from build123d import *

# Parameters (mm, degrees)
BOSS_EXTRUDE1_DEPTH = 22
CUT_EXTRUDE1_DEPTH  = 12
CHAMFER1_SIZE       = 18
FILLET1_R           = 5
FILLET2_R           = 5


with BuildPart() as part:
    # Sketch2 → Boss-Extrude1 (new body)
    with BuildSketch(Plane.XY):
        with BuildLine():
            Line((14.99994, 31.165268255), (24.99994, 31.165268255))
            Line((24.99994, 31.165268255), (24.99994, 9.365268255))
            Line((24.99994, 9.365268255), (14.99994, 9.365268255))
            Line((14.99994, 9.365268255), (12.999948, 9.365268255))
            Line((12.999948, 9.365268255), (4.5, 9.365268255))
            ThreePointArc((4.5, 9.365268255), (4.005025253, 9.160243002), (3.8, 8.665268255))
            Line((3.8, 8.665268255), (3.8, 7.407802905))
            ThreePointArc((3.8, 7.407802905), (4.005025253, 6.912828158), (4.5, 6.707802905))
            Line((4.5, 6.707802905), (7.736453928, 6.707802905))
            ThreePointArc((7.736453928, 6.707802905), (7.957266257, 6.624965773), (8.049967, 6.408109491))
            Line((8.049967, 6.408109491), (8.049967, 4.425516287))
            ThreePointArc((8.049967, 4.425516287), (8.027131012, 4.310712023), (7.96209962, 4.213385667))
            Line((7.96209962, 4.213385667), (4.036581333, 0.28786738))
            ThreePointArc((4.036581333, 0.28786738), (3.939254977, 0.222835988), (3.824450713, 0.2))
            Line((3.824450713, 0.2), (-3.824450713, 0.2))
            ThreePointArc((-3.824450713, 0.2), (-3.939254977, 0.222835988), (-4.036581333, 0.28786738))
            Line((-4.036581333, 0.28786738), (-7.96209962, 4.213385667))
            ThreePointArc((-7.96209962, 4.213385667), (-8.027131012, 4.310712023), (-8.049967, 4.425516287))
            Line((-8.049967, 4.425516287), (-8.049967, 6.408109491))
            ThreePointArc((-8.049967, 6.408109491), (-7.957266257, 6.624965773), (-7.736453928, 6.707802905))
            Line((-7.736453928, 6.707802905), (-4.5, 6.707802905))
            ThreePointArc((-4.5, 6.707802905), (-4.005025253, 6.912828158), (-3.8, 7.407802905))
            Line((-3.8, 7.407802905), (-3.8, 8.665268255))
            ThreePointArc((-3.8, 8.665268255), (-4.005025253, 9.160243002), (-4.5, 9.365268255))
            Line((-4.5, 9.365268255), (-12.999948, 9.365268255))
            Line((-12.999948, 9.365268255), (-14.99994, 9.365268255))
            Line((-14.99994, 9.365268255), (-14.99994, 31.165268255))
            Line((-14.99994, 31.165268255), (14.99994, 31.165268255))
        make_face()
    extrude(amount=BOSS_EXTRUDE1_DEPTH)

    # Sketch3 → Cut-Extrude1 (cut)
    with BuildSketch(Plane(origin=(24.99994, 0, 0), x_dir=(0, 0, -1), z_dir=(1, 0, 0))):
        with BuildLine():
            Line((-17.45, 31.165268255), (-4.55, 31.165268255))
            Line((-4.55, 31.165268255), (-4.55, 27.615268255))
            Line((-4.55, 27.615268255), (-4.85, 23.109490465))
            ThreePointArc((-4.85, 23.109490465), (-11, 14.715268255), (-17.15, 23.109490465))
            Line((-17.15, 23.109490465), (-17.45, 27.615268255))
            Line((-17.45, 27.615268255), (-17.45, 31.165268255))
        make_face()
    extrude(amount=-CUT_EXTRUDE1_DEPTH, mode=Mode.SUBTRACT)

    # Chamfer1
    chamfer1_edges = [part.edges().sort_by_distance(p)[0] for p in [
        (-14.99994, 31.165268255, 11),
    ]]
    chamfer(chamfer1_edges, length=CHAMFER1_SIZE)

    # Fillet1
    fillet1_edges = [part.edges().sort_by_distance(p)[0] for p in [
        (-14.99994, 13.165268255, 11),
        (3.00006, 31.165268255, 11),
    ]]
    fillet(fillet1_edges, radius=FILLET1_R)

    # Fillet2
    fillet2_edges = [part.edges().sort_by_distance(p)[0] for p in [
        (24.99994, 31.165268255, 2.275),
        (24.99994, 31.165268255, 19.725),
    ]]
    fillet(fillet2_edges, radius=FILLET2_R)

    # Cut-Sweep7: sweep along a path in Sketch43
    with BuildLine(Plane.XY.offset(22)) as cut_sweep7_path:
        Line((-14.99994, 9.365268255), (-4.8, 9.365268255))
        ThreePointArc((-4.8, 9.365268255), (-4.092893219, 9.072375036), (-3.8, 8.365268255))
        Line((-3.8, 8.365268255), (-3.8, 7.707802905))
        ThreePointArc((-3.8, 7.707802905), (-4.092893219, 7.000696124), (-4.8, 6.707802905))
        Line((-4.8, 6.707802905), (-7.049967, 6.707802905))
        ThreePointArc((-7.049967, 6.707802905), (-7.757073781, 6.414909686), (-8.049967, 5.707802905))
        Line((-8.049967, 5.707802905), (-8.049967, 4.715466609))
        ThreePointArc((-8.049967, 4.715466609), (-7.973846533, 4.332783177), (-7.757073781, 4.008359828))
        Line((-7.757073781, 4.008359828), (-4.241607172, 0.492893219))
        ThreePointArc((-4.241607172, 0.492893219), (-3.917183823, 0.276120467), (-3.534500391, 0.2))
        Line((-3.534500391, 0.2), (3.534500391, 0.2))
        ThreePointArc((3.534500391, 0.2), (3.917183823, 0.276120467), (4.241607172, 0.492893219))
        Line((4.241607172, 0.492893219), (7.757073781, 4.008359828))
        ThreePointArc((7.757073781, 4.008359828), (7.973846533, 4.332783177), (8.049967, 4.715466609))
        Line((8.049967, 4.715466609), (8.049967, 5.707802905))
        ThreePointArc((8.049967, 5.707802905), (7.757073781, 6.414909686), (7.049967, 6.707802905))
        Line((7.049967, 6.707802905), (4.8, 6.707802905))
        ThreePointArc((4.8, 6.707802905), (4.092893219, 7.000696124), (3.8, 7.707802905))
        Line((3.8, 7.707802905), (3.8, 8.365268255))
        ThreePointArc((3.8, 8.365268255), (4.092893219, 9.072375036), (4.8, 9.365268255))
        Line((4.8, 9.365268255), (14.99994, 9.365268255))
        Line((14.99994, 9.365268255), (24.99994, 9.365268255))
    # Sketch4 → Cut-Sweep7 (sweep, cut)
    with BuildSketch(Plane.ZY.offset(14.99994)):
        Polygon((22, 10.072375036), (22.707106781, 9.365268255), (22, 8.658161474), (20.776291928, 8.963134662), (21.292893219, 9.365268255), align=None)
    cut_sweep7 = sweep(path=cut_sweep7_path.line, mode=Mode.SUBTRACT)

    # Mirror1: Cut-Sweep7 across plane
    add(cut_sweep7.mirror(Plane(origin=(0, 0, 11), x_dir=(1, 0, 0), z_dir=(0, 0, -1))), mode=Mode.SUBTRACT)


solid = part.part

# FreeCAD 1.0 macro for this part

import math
import FreeCAD as App
import Part
import Sketcher


def edges_at(feature, points):
    """Names of the edges that pass closest to the given points."""
    edges = feature.Shape.Edges
    near = lambda p: min(range(len(edges)), key=lambda i: edges[i].distToShape(Part.Vertex(*p))[0])
    return sorted({f"Edge{near(p) + 1}" for p in points})

doc = App.newDocument("Part")
body = doc.addObject("PartDesign::Body", "Body")

# Sketch on XY plane
sketch1 = body.newObject("Sketcher::SketchObject", "Sketch")
sketch1.AttachmentSupport = (doc.getObject("XY_Plane"), [""])
sketch1.MapMode = "FlatFace"
sketch1.addGeometry([
    Part.LineSegment(App.Vector(25, 9.37, 0), App.Vector(25, 31.17, 0)),  # 0
    Part.LineSegment(App.Vector(25, 31.17, 0), App.Vector(-15, 31.17, 0)),  # 1
    Part.LineSegment(App.Vector(-15, 31.17, 0), App.Vector(-15, 9.37, 0)),  # 2
    Part.LineSegment(App.Vector(-15, 9.37, 0), App.Vector(-4.5, 9.37, 0)),  # 3
    Part.ArcOfCircle(Part.Circle(App.Vector(-4.5, 8.67, 0), App.Vector(0, 0, 1), 0.7), math.radians(0), math.radians(90)),  # 4
    Part.LineSegment(App.Vector(-3.8, 8.67, 0), App.Vector(-3.8, 7.41, 0)),  # 5
    Part.ArcOfCircle(Part.Circle(App.Vector(-4.5, 7.41, 0), App.Vector(0, 0, 1), 0.7), math.radians(-90), math.radians(0)),  # 6
    Part.LineSegment(App.Vector(-4.5, 6.71, 0), App.Vector(-7.74, 6.71, 0)),  # 7
    Part.ArcOfCircle(Part.Circle(App.Vector(-7.75, 6.41, 0), App.Vector(0, 0, 1), 0.3), math.radians(87), math.radians(180)),  # 8
    Part.LineSegment(App.Vector(-8.05, 6.41, 0), App.Vector(-8.05, 4.43, 0)),  # 9
    Part.ArcOfCircle(Part.Circle(App.Vector(-7.75, 4.43, 0), App.Vector(0, 0, 1), 0.3), math.radians(180), math.radians(225)),  # 10
    Part.LineSegment(App.Vector(-7.96, 4.21, 0), App.Vector(-4.04, 0.29, 0)),  # 11
    Part.ArcOfCircle(Part.Circle(App.Vector(-3.82, 0.5, 0), App.Vector(0, 0, 1), 0.3), math.radians(-135), math.radians(-90)),  # 12
    Part.LineSegment(App.Vector(-3.82, 0.2, 0), App.Vector(3.82, 0.2, 0)),  # 13
    Part.ArcOfCircle(Part.Circle(App.Vector(3.82, 0.5, 0), App.Vector(0, 0, 1), 0.3), math.radians(-90), math.radians(-45)),  # 14
    Part.LineSegment(App.Vector(4.04, 0.29, 0), App.Vector(7.96, 4.21, 0)),  # 15
    Part.ArcOfCircle(Part.Circle(App.Vector(7.75, 4.43, 0), App.Vector(0, 0, 1), 0.3), math.radians(-45), math.radians(0)),  # 16
    Part.LineSegment(App.Vector(8.05, 4.43, 0), App.Vector(8.05, 6.41, 0)),  # 17
    Part.ArcOfCircle(Part.Circle(App.Vector(7.75, 6.41, 0), App.Vector(0, 0, 1), 0.3), math.radians(0), math.radians(93)),  # 18
    Part.LineSegment(App.Vector(7.74, 6.71, 0), App.Vector(4.5, 6.71, 0)),  # 19
    Part.ArcOfCircle(Part.Circle(App.Vector(4.5, 7.41, 0), App.Vector(0, 0, 1), 0.7), math.radians(180), math.radians(270)),  # 20
    Part.LineSegment(App.Vector(3.8, 7.41, 0), App.Vector(3.8, 8.67, 0)),  # 21
    Part.ArcOfCircle(Part.Circle(App.Vector(4.5, 8.67, 0), App.Vector(0, 0, 1), 0.7), math.radians(90), math.radians(180)),  # 22
    Part.LineSegment(App.Vector(4.5, 9.37, 0), App.Vector(25, 9.37, 0)),  # 23
], False)
sketch1.addConstraint([
    Sketcher.Constraint("Coincident", 0, 2, 1, 1),
    Sketcher.Constraint("Coincident", 1, 2, 2, 1),
    Sketcher.Constraint("Coincident", 2, 2, 3, 1),
    Sketcher.Constraint("Tangent", 3, 2, 4, 2),
    Sketcher.Constraint("Tangent", 4, 1, 5, 1),
    Sketcher.Constraint("Tangent", 5, 2, 6, 2),
    Sketcher.Constraint("Tangent", 6, 1, 7, 1),
    Sketcher.Constraint("Coincident", 7, 2, 8, 1),
    Sketcher.Constraint("Tangent", 8, 2, 9, 1),
    Sketcher.Constraint("Tangent", 9, 2, 10, 1),
    Sketcher.Constraint("Tangent", 10, 2, 11, 1),
    Sketcher.Constraint("Tangent", 11, 2, 12, 1),
    Sketcher.Constraint("Tangent", 12, 2, 13, 1),
    Sketcher.Constraint("Tangent", 13, 2, 14, 1),
    Sketcher.Constraint("Tangent", 14, 2, 15, 1),
    Sketcher.Constraint("Tangent", 15, 2, 16, 1),
    Sketcher.Constraint("Tangent", 16, 2, 17, 1),
    Sketcher.Constraint("Tangent", 17, 2, 18, 1),
    Sketcher.Constraint("Coincident", 18, 2, 19, 1),
    Sketcher.Constraint("Tangent", 19, 2, 20, 2),
    Sketcher.Constraint("Tangent", 20, 1, 21, 1),
    Sketcher.Constraint("Tangent", 21, 2, 22, 2),
    Sketcher.Constraint("Tangent", 22, 1, 23, 1),
    Sketcher.Constraint("Coincident", 23, 2, 0, 1),
    Sketcher.Constraint("Vertical", 0),
    Sketcher.Constraint("Horizontal", 1),
    Sketcher.Constraint("Vertical", 2),
    Sketcher.Constraint("Horizontal", 3),
    Sketcher.Constraint("Vertical", 5),
    Sketcher.Constraint("Horizontal", 7),
    Sketcher.Constraint("Vertical", 9),
    Sketcher.Constraint("Horizontal", 13),
    Sketcher.Constraint("Vertical", 17),
    Sketcher.Constraint("Horizontal", 19),
    Sketcher.Constraint("Vertical", 21),
    Sketcher.Constraint("Horizontal", 23),
    Sketcher.Constraint("Equal", 4, 6),
    Sketcher.Constraint("Equal", 8, 10),
    Sketcher.Constraint("Equal", 10, 12),
    Sketcher.Constraint("Equal", 12, 14),
    Sketcher.Constraint("Equal", 14, 16),
    Sketcher.Constraint("Equal", 16, 18),
    Sketcher.Constraint("Equal", 6, 20),
    Sketcher.Constraint("Equal", 20, 22),
    Sketcher.Constraint("Symmetric", 10, 3, 16, 3, -2),
    Sketcher.Constraint("Symmetric", 6, 3, 20, 3, -2),
    Sketcher.Constraint("Perpendicular", 11, 15),
    Sketcher.Constraint("Horizontal", 8, 3, 18, 3),
    Sketcher.Constraint("Horizontal", 4, 3, 22, 3),
    Sketcher.Constraint("Horizontal", 11, 2, 14, 2),
    Sketcher.Constraint("Radius", 4, 0.7),
    Sketcher.Constraint("DistanceY", 0, 1, 0, 2, 21.8),
    Sketcher.Constraint("DistanceX", 6, 3, 20, 3, 9.0),
    Sketcher.Constraint("DistanceY", -1, 1, 12, 2, 0.2),
    Sketcher.Constraint("DistanceX", 8, 2, 8, 3, 0.299998),
    Sketcher.Constraint("DistanceX", 13, 1, 13, 2, 7.648901),
    Sketcher.Constraint("DistanceX", 1, 2, 1, 1, 39.99988),
    Sketcher.Constraint("DistanceX", 3, 1, 3, 2, 10.49994),
    Sketcher.Constraint("DistanceX", 10, 2, -1, 1, 7.9621),
    Sketcher.Constraint("DistanceX", 7, 2, 7, 1, 3.236454),
    Sketcher.Constraint("DistanceY", 5, 2, 5, 1, 1.257465),
    Sketcher.Constraint("DistanceY", 9, 2, 9, 1, 1.982593),
])
pad1 = body.newObject("PartDesign::Pad", "Pad")
pad1.Profile = sketch1
pad1.Length = 22

# Sketch on YZ plane
sketch2 = body.newObject("Sketcher::SketchObject", "Sketch001")
sketch2.AttachmentSupport = (doc.getObject("YZ_Plane"), [""])
sketch2.MapMode = "FlatFace"
sketch2.AttachmentOffset = App.Placement(App.Vector(0, 0, 24.99994), App.Rotation())
sketch2.addGeometry([
    Part.LineSegment(App.Vector(31.2, 4.5, 0), App.Vector(31.2, 17.4, 0)),  # 0
    Part.LineSegment(App.Vector(31.2, 17.4, 0), App.Vector(27.6, 17.4, 0)),  # 1
    Part.LineSegment(App.Vector(27.6, 17.4, 0), App.Vector(23.1, 17.1, 0)),  # 2
    Part.ArcOfCircle(Part.Circle(App.Vector(21.2, 11, 0), App.Vector(0, 0, 1), 6.5), math.radians(72), math.radians(288)),  # 3
    Part.LineSegment(App.Vector(23.1, 4.8, 0), App.Vector(27.6, 4.5, 0)),  # 4
    Part.LineSegment(App.Vector(27.6, 4.5, 0), App.Vector(31.2, 4.5, 0)),  # 5
], False)
sketch2.addConstraint([
    Sketcher.Constraint("Coincident", 0, 2, 1, 1),
    Sketcher.Constraint("Coincident", 1, 2, 2, 1),
    Sketcher.Constraint("Coincident", 2, 2, 3, 1),
    Sketcher.Constraint("Coincident", 3, 2, 4, 1),
    Sketcher.Constraint("Coincident", 4, 2, 5, 1),
    Sketcher.Constraint("Coincident", 5, 2, 0, 1),
    Sketcher.Constraint("Vertical", 0),
    Sketcher.Constraint("Horizontal", 1),
    Sketcher.Constraint("Horizontal", 5),
    Sketcher.Constraint("Vertical", 2, 2, 3, 2),
    Sketcher.Constraint("Vertical", 1, 2, 4, 2),
    Sketcher.Constraint("Equal", 2, 4),
    Sketcher.Constraint("Radius", 3, 6.45),
    Sketcher.Constraint("DistanceY", 0, 1, 0, 2, 12.9),
    Sketcher.Constraint("DistanceY", -1, 1, 3, 3, 11.0),
    Sketcher.Constraint("DistanceX", 3, 3, 0, 2, 10.0),
    Sketcher.Constraint("DistanceX", 1, 2, 1, 1, 3.55),
    Sketcher.Constraint("DistanceY", 2, 2, 1, 2, 0.3),
    Sketcher.Constraint("DistanceX", -1, 1, 3, 3, 21.165268),
])
pocket1 = body.newObject("PartDesign::Pocket", "Pocket")
pocket1.Profile = sketch2
pocket1.Length = 12
doc.recompute()

chamfer = body.newObject("PartDesign::Chamfer", "Chamfer")
chamfer.Base = (pocket1, edges_at(pocket1, [(-15, 31.165, 11)]))
chamfer.Size = 18
doc.recompute()

fillet = body.newObject("PartDesign::Fillet", "Fillet")
fillet.Base = (chamfer, edges_at(chamfer, [(-15, 13.165, 11), (3, 31.165, 11)]))
fillet.Radius = 5
doc.recompute()

fillet2 = body.newObject("PartDesign::Fillet", "Fillet001")
fillet2.Base = (fillet, edges_at(fillet, [(25, 31.165, 2.275), (25, 31.165, 19.725)]))
fillet2.Radius = 5

# Sketch on YZ plane
sketch3 = body.newObject("Sketcher::SketchObject", "Sketch002")
sketch3.AttachmentSupport = (doc.getObject("YZ_Plane"), [""])
sketch3.MapMode = "FlatFace"
sketch3.AttachmentOffset = App.Placement(App.Vector(0, 0, -14.99994), App.Rotation())
sketch3.addGeometry([
    Part.LineSegment(App.Vector(9.4, 22.7, 0), App.Vector(10.1, 22, 0)),  # 0
    Part.LineSegment(App.Vector(10.1, 22, 0), App.Vector(9.4, 21.3, 0)),  # 1
    Part.LineSegment(App.Vector(9.4, 21.3, 0), App.Vector(9, 20.8, 0)),  # 2
    Part.LineSegment(App.Vector(9, 20.8, 0), App.Vector(8.7, 22, 0)),  # 3
    Part.LineSegment(App.Vector(8.7, 22, 0), App.Vector(9.4, 22.7, 0)),  # 4
], False)
sketch3.addConstraint([
    Sketcher.Constraint("Coincident", 0, 2, 1, 1),
    Sketcher.Constraint("Coincident", 1, 2, 2, 1),
    Sketcher.Constraint("Coincident", 2, 2, 3, 1),
    Sketcher.Constraint("Coincident", 3, 2, 4, 1),
    Sketcher.Constraint("Coincident", 4, 2, 0, 1),
    Sketcher.Constraint("Perpendicular", 0, 1),
    Sketcher.Constraint("Parallel", 1, 4),
    Sketcher.Constraint("Horizontal", 0, 2, 3, 2),
    Sketcher.Constraint("Vertical", 1, 2, 4, 2),
    Sketcher.Constraint("Equal", 0, 1),
    Sketcher.Constraint("Distance", 0, 1.0),
    Sketcher.Constraint("DistanceY", -1, 1, 0, 2, 22.0),
    Sketcher.Constraint("DistanceY", 2, 2, 1, 2, 0.516601),
    Sketcher.Constraint("Distance", 3, 1.261138),
    Sketcher.Constraint("DistanceX", -1, 1, 1, 2, 9.365268),
])

# Sketch on XY plane
sketch4 = body.newObject("Sketcher::SketchObject", "Sketch003")
sketch4.AttachmentSupport = (doc.getObject("XY_Plane"), [""])
sketch4.MapMode = "FlatFace"
sketch4.AttachmentOffset = App.Placement(App.Vector(0, 0, 22), App.Rotation())
sketch4.addGeometry([
    Part.LineSegment(App.Vector(-15, 9.4, 0), App.Vector(-4.8, 9.4, 0)),  # 0
    Part.ArcOfCircle(Part.Circle(App.Vector(-4.8, 8.4, 0), App.Vector(0, 0, 1), 1), math.radians(0), math.radians(90)),  # 1
    Part.LineSegment(App.Vector(-3.8, 8.4, 0), App.Vector(-3.8, 7.7, 0)),  # 2
    Part.ArcOfCircle(Part.Circle(App.Vector(-4.8, 7.7, 0), App.Vector(0, 0, 1), 1), math.radians(-90), math.radians(0)),  # 3
    Part.LineSegment(App.Vector(-4.8, 6.7, 0), App.Vector(-7, 6.7, 0)),  # 4
    Part.ArcOfCircle(Part.Circle(App.Vector(-7, 5.7, 0), App.Vector(0, 0, 1), 1), math.radians(90), math.radians(180)),  # 5
    Part.LineSegment(App.Vector(-8, 5.7, 0), App.Vector(-8, 4.7, 0)),  # 6
    Part.ArcOfCircle(Part.Circle(App.Vector(-7, 4.7, 0), App.Vector(0, 0, 1), 1), math.radians(180), math.radians(225)),  # 7
    Part.LineSegment(App.Vector(-7.8, 4, 0), App.Vector(-4.2, 0.5, 0)),  # 8
    Part.ArcOfCircle(Part.Circle(App.Vector(-3.5, 1.2, 0), App.Vector(0, 0, 1), 1), math.radians(-135), math.radians(-90)),  # 9
    Part.LineSegment(App.Vector(-3.5, 0.2, 0), App.Vector(3.5, 0.2, 0)),  # 10
    Part.ArcOfCircle(Part.Circle(App.Vector(3.5, 1.2, 0), App.Vector(0, 0, 1), 1), math.radians(-90), math.radians(-45)),  # 11
    Part.LineSegment(App.Vector(4.2, 0.5, 0), App.Vector(7.8, 4, 0)),  # 12
    Part.ArcOfCircle(Part.Circle(App.Vector(7, 4.7, 0), App.Vector(0, 0, 1), 1), math.radians(-45), math.radians(0)),  # 13
    Part.LineSegment(App.Vector(8, 4.7, 0), App.Vector(8, 5.7, 0)),  # 14
    Part.ArcOfCircle(Part.Circle(App.Vector(7, 5.7, 0), App.Vector(0, 0, 1), 1), math.radians(0), math.radians(90)),  # 15
    Part.LineSegment(App.Vector(7, 6.7, 0), App.Vector(4.8, 6.7, 0)),  # 16
    Part.ArcOfCircle(Part.Circle(App.Vector(4.8, 7.7, 0), App.Vector(0, 0, 1), 1), math.radians(-180), math.radians(-90)),  # 17
    Part.LineSegment(App.Vector(3.8, 7.7, 0), App.Vector(3.8, 8.4, 0)),  # 18
    Part.ArcOfCircle(Part.Circle(App.Vector(4.8, 8.4, 0), App.Vector(0, 0, 1), 1), math.radians(90), math.radians(180)),  # 19
    Part.LineSegment(App.Vector(4.8, 9.4, 0), App.Vector(25, 9.4, 0)),  # 20
], False)
sketch4.addConstraint([
    Sketcher.Constraint("Tangent", 0, 2, 1, 2),
    Sketcher.Constraint("Tangent", 1, 1, 2, 1),
    Sketcher.Constraint("Tangent", 2, 2, 3, 2),
    Sketcher.Constraint("Tangent", 3, 1, 4, 1),
    Sketcher.Constraint("Tangent", 4, 2, 5, 1),
    Sketcher.Constraint("Tangent", 5, 2, 6, 1),
    Sketcher.Constraint("Tangent", 6, 2, 7, 1),
    Sketcher.Constraint("Tangent", 7, 2, 8, 1),
    Sketcher.Constraint("Tangent", 8, 2, 9, 1),
    Sketcher.Constraint("Tangent", 9, 2, 10, 1),
    Sketcher.Constraint("Tangent", 10, 2, 11, 1),
    Sketcher.Constraint("Tangent", 11, 2, 12, 1),
    Sketcher.Constraint("Tangent", 12, 2, 13, 1),
    Sketcher.Constraint("Tangent", 13, 2, 14, 1),
    Sketcher.Constraint("Tangent", 14, 2, 15, 1),
    Sketcher.Constraint("Tangent", 15, 2, 16, 1),
    Sketcher.Constraint("Tangent", 16, 2, 17, 2),
    Sketcher.Constraint("Tangent", 17, 1, 18, 1),
    Sketcher.Constraint("Tangent", 18, 2, 19, 2),
    Sketcher.Constraint("Tangent", 19, 1, 20, 1),
    Sketcher.Constraint("Horizontal", 0),
    Sketcher.Constraint("Vertical", 2),
    Sketcher.Constraint("Horizontal", 4),
    Sketcher.Constraint("Vertical", 6),
    Sketcher.Constraint("Horizontal", 10),
    Sketcher.Constraint("Vertical", 14),
    Sketcher.Constraint("Horizontal", 16),
    Sketcher.Constraint("Vertical", 18),
    Sketcher.Constraint("Horizontal", 20),
    Sketcher.Constraint("Equal", 1, 3),
    Sketcher.Constraint("Equal", 3, 5),
    Sketcher.Constraint("Equal", 5, 7),
    Sketcher.Constraint("Equal", 7, 9),
    Sketcher.Constraint("Equal", 9, 11),
    Sketcher.Constraint("Equal", 11, 13),
    Sketcher.Constraint("Equal", 13, 15),
    Sketcher.Constraint("Equal", 15, 17),
    Sketcher.Constraint("Equal", 17, 19),
    Sketcher.Constraint("Symmetric", 7, 3, 13, 3, -2),
    Sketcher.Constraint("Symmetric", 3, 3, 17, 3, -2),
    Sketcher.Constraint("Perpendicular", 8, 12),
    Sketcher.Constraint("Horizontal", 1, 3, 19, 3),
    Sketcher.Constraint("Horizontal", 8, 2, 11, 2),
    Sketcher.Constraint("Radius", 1, 1.0),
    Sketcher.Constraint("DistanceX", 1, 3, -1, 1, 4.8),
    Sketcher.Constraint("DistanceY", -1, 1, 9, 3, 1.2),
    Sketcher.Constraint("DistanceX", 10, 1, 10, 2, 7.069001),
    Sketcher.Constraint("DistanceX", 0, 1, 0, 2, 10.19994),
    Sketcher.Constraint("DistanceX", 20, 1, 20, 2, 20.19994),
    Sketcher.Constraint("DistanceY", 7, 3, 1, 3, 3.649802),
    Sketcher.Constraint("Distance", 8, 4.971621),
    Sketcher.Constraint("DistanceY", 2, 2, 2, 1, 0.657465),
])
doc.recompute()

subtractivepipe = body.newObject("PartDesign::SubtractivePipe", "SubtractivePipe")
subtractivepipe.Profile = sketch3
subtractivepipe.Spine = (sketch4, ["Edge1", "Edge2", "Edge3", "Edge4", "Edge5", "Edge6", "Edge7", "Edge8", "Edge9", "Edge10", "Edge11", "Edge12", "Edge13", "Edge14", "Edge15", "Edge16", "Edge17", "Edge18", "Edge19", "Edge20", "Edge21"])
doc.recompute()

datumplane = body.newObject("PartDesign::Plane", "DatumPlane")
datumplane.AttachmentSupport = (doc.getObject("XY_Plane"), [""])
datumplane.MapMode = "FlatFace"
datumplane.AttachmentOffset = App.Placement(App.Vector(0, 0, 11), App.Rotation())
mirrored = body.newObject("PartDesign::Mirrored", "Mirrored")
mirrored.Originals = [subtractivepipe]
mirrored.MirrorPlane = (datumplane, [""])
body.Tip = mirrored

doc.recompute()
